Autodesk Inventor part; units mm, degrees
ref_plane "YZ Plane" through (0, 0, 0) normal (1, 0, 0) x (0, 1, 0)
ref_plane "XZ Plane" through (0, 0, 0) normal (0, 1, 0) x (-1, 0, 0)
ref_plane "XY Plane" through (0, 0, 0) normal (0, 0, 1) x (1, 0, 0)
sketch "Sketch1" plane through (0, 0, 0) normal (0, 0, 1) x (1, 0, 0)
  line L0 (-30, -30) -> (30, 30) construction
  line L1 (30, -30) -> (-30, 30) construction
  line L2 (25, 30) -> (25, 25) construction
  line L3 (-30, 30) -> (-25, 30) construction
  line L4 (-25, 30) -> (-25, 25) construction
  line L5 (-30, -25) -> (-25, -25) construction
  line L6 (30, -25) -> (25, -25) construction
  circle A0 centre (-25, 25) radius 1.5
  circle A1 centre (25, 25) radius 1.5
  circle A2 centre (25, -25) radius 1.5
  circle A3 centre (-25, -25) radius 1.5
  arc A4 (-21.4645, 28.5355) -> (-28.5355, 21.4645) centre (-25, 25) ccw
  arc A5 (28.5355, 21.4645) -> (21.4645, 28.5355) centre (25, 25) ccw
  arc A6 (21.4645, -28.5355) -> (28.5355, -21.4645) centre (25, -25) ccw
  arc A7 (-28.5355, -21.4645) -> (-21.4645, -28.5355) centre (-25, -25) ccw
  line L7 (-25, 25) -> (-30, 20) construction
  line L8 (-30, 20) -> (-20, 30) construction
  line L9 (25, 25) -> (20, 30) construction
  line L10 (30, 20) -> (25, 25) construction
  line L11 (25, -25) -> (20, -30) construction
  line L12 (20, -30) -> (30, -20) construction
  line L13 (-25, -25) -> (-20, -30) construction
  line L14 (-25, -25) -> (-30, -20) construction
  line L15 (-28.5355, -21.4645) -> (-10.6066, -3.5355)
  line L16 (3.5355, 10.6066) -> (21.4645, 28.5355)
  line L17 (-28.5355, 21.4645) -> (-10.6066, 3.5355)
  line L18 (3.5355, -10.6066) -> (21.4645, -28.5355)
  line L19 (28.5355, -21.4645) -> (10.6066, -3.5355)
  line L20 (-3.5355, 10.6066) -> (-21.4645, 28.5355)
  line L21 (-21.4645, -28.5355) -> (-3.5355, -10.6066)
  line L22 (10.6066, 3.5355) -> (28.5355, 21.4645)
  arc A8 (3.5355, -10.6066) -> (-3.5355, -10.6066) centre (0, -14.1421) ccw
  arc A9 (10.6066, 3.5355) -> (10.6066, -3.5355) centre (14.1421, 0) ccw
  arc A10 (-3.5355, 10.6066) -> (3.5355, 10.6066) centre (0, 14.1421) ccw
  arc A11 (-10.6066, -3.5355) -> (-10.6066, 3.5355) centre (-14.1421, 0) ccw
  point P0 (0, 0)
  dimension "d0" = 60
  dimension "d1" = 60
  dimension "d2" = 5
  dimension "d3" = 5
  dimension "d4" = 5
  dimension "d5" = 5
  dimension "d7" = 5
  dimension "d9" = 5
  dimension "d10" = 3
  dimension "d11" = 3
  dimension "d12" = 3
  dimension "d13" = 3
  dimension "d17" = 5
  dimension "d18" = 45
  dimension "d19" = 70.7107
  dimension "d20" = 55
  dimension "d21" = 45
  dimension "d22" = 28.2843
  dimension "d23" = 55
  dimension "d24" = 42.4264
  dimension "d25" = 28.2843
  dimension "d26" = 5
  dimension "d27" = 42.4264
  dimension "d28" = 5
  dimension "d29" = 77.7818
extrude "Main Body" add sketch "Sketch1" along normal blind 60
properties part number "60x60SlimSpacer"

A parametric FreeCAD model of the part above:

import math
import FreeCAD as App
import Part
import Sketcher
from FreeCAD import Vector

doc = App.newDocument("Part")
body = doc.addObject("PartDesign::Body", "Body")

# Sketch on XY plane
sketch1 = doc.addObject("Sketcher::SketchObject", "Sketch")
body.addObject(sketch1)
sketch1.AttachmentSupport = (doc.XY_Plane, [""])
sketch1.MapMode = "FlatFace"
sketch1.addGeometry(Part.LineSegment(Vector(-3.5, 10.6, 0), Vector(-21.5, 28.5, 0)), False)
sketch1.addGeometry(Part.ArcOfCircle(Part.Circle(Vector(-25, 25, 0), Vector(0, 0, 1), 5), math.radians(45), math.radians(225)), False)
sketch1.addGeometry(Part.LineSegment(Vector(-28.5, 21.5, 0), Vector(-10.6, 3.5, 0)), False)
sketch1.addGeometry(Part.ArcOfCircle(Part.Circle(Vector(-14.1, 0, 0), Vector(0, 0, 1), 5), math.radians(-45), math.radians(45)), False)
sketch1.addGeometry(Part.LineSegment(Vector(-10.6, -3.5, 0), Vector(-28.5, -21.5, 0)), False)
sketch1.addGeometry(Part.ArcOfCircle(Part.Circle(Vector(-25, -25, 0), Vector(0, 0, 1), 5), math.radians(135), math.radians(315)), False)
sketch1.addGeometry(Part.LineSegment(Vector(-21.5, -28.5, 0), Vector(-3.5, -10.6, 0)), False)
sketch1.addGeometry(Part.ArcOfCircle(Part.Circle(Vector(0, -14.1, 0), Vector(0, 0, 1), 5), math.radians(45), math.radians(135)), False)
sketch1.addGeometry(Part.LineSegment(Vector(3.5, -10.6, 0), Vector(21.5, -28.5, 0)), False)
sketch1.addGeometry(Part.ArcOfCircle(Part.Circle(Vector(25, -25, 0), Vector(0, 0, 1), 5), math.radians(-135), math.radians(45)), False)
sketch1.addGeometry(Part.LineSegment(Vector(28.5, -21.5, 0), Vector(10.6, -3.5, 0)), False)
sketch1.addGeometry(Part.ArcOfCircle(Part.Circle(Vector(14.1, 0, 0), Vector(0, 0, 1), 5), math.radians(135), math.radians(225)), False)
sketch1.addGeometry(Part.LineSegment(Vector(10.6, 3.5, 0), Vector(28.5, 21.5, 0)), False)
sketch1.addGeometry(Part.ArcOfCircle(Part.Circle(Vector(25, 25, 0), Vector(0, 0, 1), 5), math.radians(-45), math.radians(135)), False)
sketch1.addGeometry(Part.LineSegment(Vector(21.5, 28.5, 0), Vector(3.5, 10.6, 0)), False)
sketch1.addGeometry(Part.ArcOfCircle(Part.Circle(Vector(0, 14.1, 0), Vector(0, 0, 1), 5), math.radians(-135), math.radians(-45)), False)
sketch1.addGeometry(Part.Circle(Vector(-25, -25, 0), Vector(0, 0, 1), 1.5), False)
sketch1.addGeometry(Part.Circle(Vector(25, -25, 0), Vector(0, 0, 1), 1.5), False)
sketch1.addGeometry(Part.Circle(Vector(-25, 25, 0), Vector(0, 0, 1), 1.5), False)
sketch1.addGeometry(Part.Circle(Vector(25, 25, 0), Vector(0, 0, 1), 1.5), False)
sketch1.addConstraint(Sketcher.Constraint("Tangent", 0, 2, 1, 1))
sketch1.addConstraint(Sketcher.Constraint("Tangent", 1, 2, 2, 1))
sketch1.addConstraint(Sketcher.Constraint("Tangent", 2, 2, 3, 2))
sketch1.addConstraint(Sketcher.Constraint("Tangent", 3, 1, 4, 1))
sketch1.addConstraint(Sketcher.Constraint("Tangent", 4, 2, 5, 1))
sketch1.addConstraint(Sketcher.Constraint("Tangent", 5, 2, 6, 1))
sketch1.addConstraint(Sketcher.Constraint("Tangent", 6, 2, 7, 2))
sketch1.addConstraint(Sketcher.Constraint("Tangent", 7, 1, 8, 1))
sketch1.addConstraint(Sketcher.Constraint("Tangent", 8, 2, 9, 1))
sketch1.addConstraint(Sketcher.Constraint("Tangent", 9, 2, 10, 1))
sketch1.addConstraint(Sketcher.Constraint("Tangent", 10, 2, 11, 2))
sketch1.addConstraint(Sketcher.Constraint("Tangent", 11, 1, 12, 1))
sketch1.addConstraint(Sketcher.Constraint("Tangent", 12, 2, 13, 1))
sketch1.addConstraint(Sketcher.Constraint("Tangent", 13, 2, 14, 1))
sketch1.addConstraint(Sketcher.Constraint("Tangent", 14, 2, 15, 2))
sketch1.addConstraint(Sketcher.Constraint("Tangent", 15, 1, 0, 1))
sketch1.addConstraint(Sketcher.Constraint("Coincident", 16, 3, 5, 3))
sketch1.addConstraint(Sketcher.Constraint("Coincident", 17, 3, 9, 3))
sketch1.addConstraint(Sketcher.Constraint("Coincident", 18, 3, 1, 3))
sketch1.addConstraint(Sketcher.Constraint("Coincident", 19, 3, 13, 3))
sketch1.addConstraint(Sketcher.Constraint("Equal", 1, 3))
sketch1.addConstraint(Sketcher.Constraint("Equal", 3, 5))
sketch1.addConstraint(Sketcher.Constraint("Equal", 5, 7))
sketch1.addConstraint(Sketcher.Constraint("Equal", 7, 9))
sketch1.addConstraint(Sketcher.Constraint("Equal", 9, 11))
sketch1.addConstraint(Sketcher.Constraint("Equal", 11, 13))
sketch1.addConstraint(Sketcher.Constraint("Equal", 13, 15))
sketch1.addConstraint(Sketcher.Constraint("Equal", 16, 17))
sketch1.addConstraint(Sketcher.Constraint("Equal", 17, 18))
sketch1.addConstraint(Sketcher.Constraint("Equal", 18, 19))
sketch1.addConstraint(Sketcher.Constraint("Symmetric", 1, 3, 9, 3, -1, 1))
sketch1.addConstraint(Sketcher.Constraint("Symmetric", 3, 3, 11, 3, -1, 1))
sketch1.addConstraint(Sketcher.Constraint("Symmetric", 5, 3, 13, 3, -1, 1))
sketch1.addConstraint(Sketcher.Constraint("Symmetric", 7, 3, 15, 3, -1, 1))
sketch1.addConstraint(Sketcher.Constraint("Symmetric", 5, 3, 9, 3, -2))
sketch1.addConstraint(Sketcher.Constraint("PointOnObject", 3, 3, -1))
sketch1.addConstraint(Sketcher.Constraint("PointOnObject", 7, 3, -2))
sketch1.addConstraint(Sketcher.Constraint("Parallel", 0, 2))
sketch1.addConstraint(Sketcher.Constraint("Perpendicular", 2, 4))
sketch1.addConstraint(Sketcher.Constraint("Equal", 0, 2))
sketch1.addConstraint(Sketcher.Constraint("Diameter", 16, 3.0))
sketch1.addConstraint(Sketcher.Constraint("Radius", 1, 5.0))
sketch1.addConstraint(Sketcher.Constraint("DistanceX", 1, 3, -1, 1, 25.0))
pad1 = doc.addObject("PartDesign::Pad", "Pad")
body.addObject(pad1)
pad1.Profile = sketch1
pad1.Length = 60

doc.recompute()
